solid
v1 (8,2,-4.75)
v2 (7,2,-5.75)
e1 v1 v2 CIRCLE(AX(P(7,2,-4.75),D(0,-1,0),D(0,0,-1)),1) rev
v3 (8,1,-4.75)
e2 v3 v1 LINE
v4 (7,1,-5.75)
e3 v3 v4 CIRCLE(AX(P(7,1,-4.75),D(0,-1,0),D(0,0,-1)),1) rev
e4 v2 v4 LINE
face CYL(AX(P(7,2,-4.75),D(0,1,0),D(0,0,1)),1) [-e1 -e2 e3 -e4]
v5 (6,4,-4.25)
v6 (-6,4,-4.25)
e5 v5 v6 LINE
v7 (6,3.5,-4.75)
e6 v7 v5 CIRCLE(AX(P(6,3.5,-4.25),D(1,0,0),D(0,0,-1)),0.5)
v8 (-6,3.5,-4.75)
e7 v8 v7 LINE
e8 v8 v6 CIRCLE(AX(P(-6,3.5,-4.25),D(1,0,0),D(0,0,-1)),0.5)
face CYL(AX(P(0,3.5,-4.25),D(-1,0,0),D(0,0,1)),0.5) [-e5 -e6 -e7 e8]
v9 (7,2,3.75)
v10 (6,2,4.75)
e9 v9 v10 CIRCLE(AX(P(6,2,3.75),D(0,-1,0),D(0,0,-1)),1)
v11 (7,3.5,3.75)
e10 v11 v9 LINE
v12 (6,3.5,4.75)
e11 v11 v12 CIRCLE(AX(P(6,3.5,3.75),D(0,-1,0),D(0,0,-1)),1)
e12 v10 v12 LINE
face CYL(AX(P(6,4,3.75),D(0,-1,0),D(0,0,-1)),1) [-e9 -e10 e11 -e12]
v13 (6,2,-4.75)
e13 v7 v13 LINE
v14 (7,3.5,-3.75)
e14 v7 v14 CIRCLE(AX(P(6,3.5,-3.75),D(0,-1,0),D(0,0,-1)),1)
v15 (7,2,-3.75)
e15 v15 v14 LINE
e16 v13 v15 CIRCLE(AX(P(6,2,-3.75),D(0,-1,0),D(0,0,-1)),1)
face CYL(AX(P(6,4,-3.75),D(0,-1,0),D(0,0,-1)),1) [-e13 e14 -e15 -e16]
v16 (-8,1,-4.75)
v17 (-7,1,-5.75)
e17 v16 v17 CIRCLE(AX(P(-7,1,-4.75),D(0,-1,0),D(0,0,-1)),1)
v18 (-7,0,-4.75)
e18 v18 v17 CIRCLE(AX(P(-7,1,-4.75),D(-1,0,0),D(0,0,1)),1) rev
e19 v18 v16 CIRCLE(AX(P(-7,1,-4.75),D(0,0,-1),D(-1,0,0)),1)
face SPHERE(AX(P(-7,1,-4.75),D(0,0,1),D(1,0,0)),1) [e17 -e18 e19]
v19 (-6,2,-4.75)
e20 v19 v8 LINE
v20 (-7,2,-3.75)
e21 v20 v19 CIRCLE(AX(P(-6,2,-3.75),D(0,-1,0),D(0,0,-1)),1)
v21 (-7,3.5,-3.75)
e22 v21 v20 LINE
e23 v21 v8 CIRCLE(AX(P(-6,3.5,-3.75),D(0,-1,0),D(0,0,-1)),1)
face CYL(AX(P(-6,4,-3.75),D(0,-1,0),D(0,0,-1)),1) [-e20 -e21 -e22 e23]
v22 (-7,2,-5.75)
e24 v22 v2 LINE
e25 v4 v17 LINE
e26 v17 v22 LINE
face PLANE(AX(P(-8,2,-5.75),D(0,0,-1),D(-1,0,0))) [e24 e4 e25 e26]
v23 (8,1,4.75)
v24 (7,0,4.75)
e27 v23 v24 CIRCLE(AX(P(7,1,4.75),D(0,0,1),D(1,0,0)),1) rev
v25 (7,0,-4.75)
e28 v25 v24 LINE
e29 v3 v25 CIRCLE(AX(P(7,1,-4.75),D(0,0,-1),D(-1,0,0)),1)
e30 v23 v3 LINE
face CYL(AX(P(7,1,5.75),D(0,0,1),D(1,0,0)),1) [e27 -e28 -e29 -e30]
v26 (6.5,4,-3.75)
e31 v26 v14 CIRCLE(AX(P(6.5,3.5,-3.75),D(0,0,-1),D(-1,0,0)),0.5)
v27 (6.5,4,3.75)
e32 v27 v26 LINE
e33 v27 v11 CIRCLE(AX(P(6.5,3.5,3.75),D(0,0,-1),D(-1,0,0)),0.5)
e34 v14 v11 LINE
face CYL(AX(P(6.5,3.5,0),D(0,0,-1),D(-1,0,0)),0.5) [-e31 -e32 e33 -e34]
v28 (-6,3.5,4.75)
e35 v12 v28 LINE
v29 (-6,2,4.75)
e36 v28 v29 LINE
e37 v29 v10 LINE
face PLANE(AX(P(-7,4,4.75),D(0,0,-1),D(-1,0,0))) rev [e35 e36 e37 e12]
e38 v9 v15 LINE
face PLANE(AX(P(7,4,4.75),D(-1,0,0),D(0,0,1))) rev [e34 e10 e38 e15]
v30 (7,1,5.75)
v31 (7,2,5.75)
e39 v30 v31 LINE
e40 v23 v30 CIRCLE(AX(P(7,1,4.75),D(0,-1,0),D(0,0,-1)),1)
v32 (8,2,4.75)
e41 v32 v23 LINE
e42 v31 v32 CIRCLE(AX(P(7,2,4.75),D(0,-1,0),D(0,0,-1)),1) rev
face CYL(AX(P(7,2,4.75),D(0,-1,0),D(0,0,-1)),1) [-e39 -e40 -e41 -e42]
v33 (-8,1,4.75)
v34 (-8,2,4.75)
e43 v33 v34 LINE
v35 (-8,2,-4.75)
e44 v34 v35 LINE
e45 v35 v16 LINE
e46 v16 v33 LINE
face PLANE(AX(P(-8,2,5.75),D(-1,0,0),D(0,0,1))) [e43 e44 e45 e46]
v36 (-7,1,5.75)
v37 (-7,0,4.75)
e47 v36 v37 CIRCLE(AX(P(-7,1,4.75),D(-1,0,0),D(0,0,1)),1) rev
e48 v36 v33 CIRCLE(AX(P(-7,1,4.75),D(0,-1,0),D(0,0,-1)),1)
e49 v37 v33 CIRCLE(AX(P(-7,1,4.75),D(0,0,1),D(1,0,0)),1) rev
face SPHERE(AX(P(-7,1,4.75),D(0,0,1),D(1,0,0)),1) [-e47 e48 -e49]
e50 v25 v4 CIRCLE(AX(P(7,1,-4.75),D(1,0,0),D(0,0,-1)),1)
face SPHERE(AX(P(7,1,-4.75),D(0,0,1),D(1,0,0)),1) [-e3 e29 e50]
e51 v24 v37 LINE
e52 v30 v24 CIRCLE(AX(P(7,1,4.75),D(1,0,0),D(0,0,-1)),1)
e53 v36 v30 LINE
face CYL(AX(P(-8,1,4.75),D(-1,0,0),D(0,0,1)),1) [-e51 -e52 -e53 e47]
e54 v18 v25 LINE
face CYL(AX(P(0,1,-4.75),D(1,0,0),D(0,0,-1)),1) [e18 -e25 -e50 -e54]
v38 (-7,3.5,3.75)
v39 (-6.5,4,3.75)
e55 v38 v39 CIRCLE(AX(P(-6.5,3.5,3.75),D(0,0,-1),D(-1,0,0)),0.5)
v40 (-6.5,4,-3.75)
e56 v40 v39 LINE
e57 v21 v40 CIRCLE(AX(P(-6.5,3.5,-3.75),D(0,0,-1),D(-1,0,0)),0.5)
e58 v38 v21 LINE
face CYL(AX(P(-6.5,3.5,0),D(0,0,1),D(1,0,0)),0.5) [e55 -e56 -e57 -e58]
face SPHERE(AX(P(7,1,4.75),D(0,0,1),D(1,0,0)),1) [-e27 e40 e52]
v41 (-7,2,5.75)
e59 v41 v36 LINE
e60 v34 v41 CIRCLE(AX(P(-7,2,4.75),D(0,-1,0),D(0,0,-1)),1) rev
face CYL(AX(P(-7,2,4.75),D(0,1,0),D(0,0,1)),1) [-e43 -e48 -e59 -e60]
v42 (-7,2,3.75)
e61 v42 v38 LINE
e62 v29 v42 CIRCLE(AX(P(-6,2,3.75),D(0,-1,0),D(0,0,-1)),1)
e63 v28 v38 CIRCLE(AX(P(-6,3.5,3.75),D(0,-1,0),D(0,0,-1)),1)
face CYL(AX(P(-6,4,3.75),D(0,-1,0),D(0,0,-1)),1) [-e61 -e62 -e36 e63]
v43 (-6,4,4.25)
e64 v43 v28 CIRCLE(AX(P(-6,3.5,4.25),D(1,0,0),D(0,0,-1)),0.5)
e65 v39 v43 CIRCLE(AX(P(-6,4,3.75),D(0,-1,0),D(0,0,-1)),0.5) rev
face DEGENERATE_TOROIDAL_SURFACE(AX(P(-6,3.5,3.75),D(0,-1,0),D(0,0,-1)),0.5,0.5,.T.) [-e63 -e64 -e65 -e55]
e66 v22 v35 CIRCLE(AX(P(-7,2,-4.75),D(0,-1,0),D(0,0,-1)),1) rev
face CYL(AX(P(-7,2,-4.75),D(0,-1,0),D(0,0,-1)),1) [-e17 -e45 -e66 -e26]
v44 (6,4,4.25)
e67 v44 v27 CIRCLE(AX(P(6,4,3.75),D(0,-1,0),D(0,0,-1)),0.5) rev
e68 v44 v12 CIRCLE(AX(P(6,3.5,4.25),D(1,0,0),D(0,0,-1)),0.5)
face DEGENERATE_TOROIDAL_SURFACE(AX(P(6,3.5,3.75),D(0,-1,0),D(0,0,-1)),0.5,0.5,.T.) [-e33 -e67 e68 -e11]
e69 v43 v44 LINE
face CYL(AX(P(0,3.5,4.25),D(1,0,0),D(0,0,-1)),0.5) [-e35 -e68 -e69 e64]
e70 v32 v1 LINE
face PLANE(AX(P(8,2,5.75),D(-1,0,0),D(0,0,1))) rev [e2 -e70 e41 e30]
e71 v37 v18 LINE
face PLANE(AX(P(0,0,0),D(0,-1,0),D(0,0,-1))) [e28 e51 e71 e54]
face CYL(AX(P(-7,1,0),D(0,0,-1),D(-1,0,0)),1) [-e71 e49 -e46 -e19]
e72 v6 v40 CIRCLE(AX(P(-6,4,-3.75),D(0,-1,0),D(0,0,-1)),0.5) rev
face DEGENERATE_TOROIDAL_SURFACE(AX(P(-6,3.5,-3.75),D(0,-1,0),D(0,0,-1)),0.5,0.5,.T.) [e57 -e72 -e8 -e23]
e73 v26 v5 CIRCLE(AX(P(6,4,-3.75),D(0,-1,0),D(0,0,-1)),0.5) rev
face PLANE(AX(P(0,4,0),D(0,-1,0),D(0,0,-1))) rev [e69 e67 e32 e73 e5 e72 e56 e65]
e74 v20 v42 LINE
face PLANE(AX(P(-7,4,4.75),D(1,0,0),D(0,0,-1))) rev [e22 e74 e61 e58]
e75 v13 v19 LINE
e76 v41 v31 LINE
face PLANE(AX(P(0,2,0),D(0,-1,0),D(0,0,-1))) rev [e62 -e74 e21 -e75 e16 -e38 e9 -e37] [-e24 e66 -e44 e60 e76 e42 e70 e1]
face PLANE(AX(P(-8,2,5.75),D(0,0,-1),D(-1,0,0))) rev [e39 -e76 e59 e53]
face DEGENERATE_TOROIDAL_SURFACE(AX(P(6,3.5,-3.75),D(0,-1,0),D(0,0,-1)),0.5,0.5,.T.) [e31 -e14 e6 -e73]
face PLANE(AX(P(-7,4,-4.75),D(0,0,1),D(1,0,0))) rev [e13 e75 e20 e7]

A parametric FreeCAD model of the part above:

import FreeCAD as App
import Part
import Sketcher


def edges_at(feature, points):
    """Names of the edges that pass closest to the given points."""
    edges = feature.Shape.Edges
    near = lambda p: min(range(len(edges)), key=lambda i: edges[i].distToShape(Part.Vertex(*p))[0])
    return sorted({f"Edge{near(p) + 1}" for p in points})


def add_polygon(sketch, points):
    """Adds a closed chain of lines whose ends are joined by coincident constraints."""
    first, n = sketch.GeometryCount, len(points)
    for a, b in zip(points, points[1:] + points[:1]):
        sketch.addGeometry(Part.LineSegment(App.Vector(*a, 0), App.Vector(*b, 0)), False)
    for i in range(n):
        sketch.addConstraint(Sketcher.Constraint("Coincident", first + i, 2, first + (i + 1) % n, 1))

doc = App.newDocument("Part")
body = doc.addObject("PartDesign::Body", "Body")

sketch1 = body.newObject("Sketcher::SketchObject", "Sketch")
sketch1.AttachmentSupport = (doc.getObject("XZ_Plane"), [""])
sketch1.MapMode = "FlatFace"
add_polygon(sketch1, [(-8, -6), (-8, 6), (8, 6), (8, -6)])
sketch1.addConstraint(Sketcher.Constraint("Vertical", 0))
sketch1.addConstraint(Sketcher.Constraint("Horizontal", 1))
sketch1.addConstraint(Sketcher.Constraint("Vertical", 2))
sketch1.addConstraint(Sketcher.Constraint("Horizontal", 3))
sketch1.addConstraint(Sketcher.Constraint("Symmetric", 0, 2, 2, 2, -1, 1))
sketch1.addConstraint(Sketcher.Constraint("DistanceX", 1, 1, 1, 2, 16.0))
sketch1.addConstraint(Sketcher.Constraint("DistanceY", 0, 1, 0, 2, 11.5))
pad1 = body.newObject("PartDesign::Pad", "Pad")
pad1.Profile = sketch1
pad1.Length = 2
pad1.Reversed = True

sketch2 = body.newObject("Sketcher::SketchObject", "Sketch001")
sketch2.AttachmentSupport = (doc.getObject("XZ_Plane"), [""])
sketch2.MapMode = "FlatFace"
sketch2.AttachmentOffset = App.Placement(App.Vector(0, 0, -2), App.Rotation())
add_polygon(sketch2, [(-7, -5), (-7, 5), (7, 5), (7, -5)])
sketch2.addConstraint(Sketcher.Constraint("Vertical", 0))
sketch2.addConstraint(Sketcher.Constraint("Horizontal", 1))
sketch2.addConstraint(Sketcher.Constraint("Vertical", 2))
sketch2.addConstraint(Sketcher.Constraint("Horizontal", 3))
sketch2.addConstraint(Sketcher.Constraint("Symmetric", 0, 2, 2, 2, -1, 1))
sketch2.addConstraint(Sketcher.Constraint("DistanceX", 1, 1, 1, 2, 14.0))
sketch2.addConstraint(Sketcher.Constraint("DistanceY", 0, 1, 0, 2, 9.5))
pad2 = body.newObject("PartDesign::Pad", "Pad001")
pad2.Profile = sketch2
pad2.Length = 2
pad2.Reversed = True
doc.recompute()

fillet = body.newObject("PartDesign::Fillet", "Fillet")
fillet.Base = (pad2, edges_at(pad2, [
    (0, 0, 5.75),
    (8, 0, 0),
    (0, 0, -5.75),
    (-8, 0, 0),
    (-8, 1, 5.75),
    (8, 1, 5.75),
    (8, 1, -5.75),
    (-8, 1, -5.75),
]))
fillet.Radius = 1
doc.recompute()

fillet2 = body.newObject("PartDesign::Fillet", "Fillet001")
fillet2.Base = (fillet, edges_at(fillet, [
    (7, 3, 4.75),
    (7, 3, -4.75),
    (-7, 3, -4.75),
    (-7, 3, 4.75),
]))
fillet2.Radius = 1
doc.recompute()

fillet3 = body.newObject("PartDesign::Fillet", "Fillet002")
fillet3.Base = (fillet2, edges_at(fillet2, [
    (7, 4, 0),
    (0, 4, 4.75),
    (0, 4, -4.75),
    (-7, 4, 0),
    (-6.707, 4, 4.457),
    (-6.707, 4, -4.457),
    (6.707, 4, -4.457),
    (6.707, 4, 4.457),
]))
fillet3.Radius = 0.5

doc.recompute()
